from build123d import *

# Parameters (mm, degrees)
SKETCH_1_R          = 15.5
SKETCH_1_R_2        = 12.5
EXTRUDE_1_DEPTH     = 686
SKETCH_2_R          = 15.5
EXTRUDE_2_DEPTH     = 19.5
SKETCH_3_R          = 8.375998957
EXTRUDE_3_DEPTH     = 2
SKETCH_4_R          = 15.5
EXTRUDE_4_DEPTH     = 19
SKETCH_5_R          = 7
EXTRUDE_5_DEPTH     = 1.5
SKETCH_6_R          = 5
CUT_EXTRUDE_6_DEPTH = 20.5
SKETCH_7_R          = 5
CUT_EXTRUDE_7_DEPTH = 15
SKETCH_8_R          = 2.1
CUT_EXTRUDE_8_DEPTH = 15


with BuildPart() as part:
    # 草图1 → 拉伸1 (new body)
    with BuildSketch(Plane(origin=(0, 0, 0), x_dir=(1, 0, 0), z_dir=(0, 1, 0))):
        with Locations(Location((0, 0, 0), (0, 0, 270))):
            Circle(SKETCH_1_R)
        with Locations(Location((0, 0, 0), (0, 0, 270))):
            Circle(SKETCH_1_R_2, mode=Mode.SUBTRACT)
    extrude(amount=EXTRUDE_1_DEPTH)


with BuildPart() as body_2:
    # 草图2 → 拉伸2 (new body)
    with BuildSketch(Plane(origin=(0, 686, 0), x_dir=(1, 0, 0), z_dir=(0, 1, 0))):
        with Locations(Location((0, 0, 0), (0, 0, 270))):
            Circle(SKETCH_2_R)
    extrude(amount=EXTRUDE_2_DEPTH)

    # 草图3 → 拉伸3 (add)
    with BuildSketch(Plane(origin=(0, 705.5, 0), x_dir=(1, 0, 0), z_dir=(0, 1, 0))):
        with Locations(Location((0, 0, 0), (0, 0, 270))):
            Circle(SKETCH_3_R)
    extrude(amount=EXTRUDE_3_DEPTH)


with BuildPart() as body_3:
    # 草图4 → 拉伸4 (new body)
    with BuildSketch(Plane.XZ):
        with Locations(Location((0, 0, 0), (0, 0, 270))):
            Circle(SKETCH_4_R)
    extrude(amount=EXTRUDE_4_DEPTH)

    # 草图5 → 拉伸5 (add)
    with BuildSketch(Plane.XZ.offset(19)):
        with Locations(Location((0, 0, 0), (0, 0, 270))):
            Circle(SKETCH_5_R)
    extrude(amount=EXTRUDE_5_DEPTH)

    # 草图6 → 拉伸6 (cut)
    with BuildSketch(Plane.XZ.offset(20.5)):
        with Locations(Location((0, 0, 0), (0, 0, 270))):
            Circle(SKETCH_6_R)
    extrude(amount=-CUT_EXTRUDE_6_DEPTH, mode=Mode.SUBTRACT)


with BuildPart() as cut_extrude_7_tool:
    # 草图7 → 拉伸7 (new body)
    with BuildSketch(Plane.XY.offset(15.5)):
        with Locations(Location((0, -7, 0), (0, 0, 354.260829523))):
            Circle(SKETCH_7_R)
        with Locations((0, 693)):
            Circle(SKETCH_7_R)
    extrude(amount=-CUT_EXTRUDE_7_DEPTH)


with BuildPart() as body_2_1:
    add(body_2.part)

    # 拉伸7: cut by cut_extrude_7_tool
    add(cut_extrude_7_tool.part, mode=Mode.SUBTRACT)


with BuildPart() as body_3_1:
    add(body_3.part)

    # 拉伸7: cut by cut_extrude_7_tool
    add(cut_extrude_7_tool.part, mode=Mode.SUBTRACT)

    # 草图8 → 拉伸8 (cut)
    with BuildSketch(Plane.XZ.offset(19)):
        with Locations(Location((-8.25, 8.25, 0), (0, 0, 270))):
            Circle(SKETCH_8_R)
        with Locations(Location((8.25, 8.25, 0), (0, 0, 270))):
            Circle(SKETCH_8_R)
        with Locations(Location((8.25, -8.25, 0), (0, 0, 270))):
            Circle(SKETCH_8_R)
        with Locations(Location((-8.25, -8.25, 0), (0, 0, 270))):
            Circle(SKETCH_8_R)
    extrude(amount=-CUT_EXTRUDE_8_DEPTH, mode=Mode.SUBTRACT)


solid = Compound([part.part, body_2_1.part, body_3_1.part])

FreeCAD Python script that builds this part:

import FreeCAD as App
import Part
import Sketcher

doc = App.newDocument("Part")
body = doc.addObject("PartDesign::Body", "Body")

sketch1 = body.newObject("Sketcher::SketchObject", "Sketch")
sketch1.AttachmentSupport = (doc.getObject("XZ_Plane"), [""])
sketch1.MapMode = "FlatFace"
sketch1.addGeometry([
    Part.Circle(App.Vector(0, 0, 0), App.Vector(0, 0, 1), 16),
    Part.Circle(App.Vector(0, 0, 0), App.Vector(0, 0, 1), 12),
], False)
sketch1.addConstraint([
    Sketcher.Constraint("Coincident", 0, 3, -1, 1),
    Sketcher.Constraint("Coincident", 1, 3, -1, 1),
    Sketcher.Constraint("Diameter", 0, 31.0),
    Sketcher.Constraint("Diameter", 1, 25.0),
])
pad1 = body.newObject("PartDesign::Pad", "Pad")
pad1.Profile = sketch1
pad1.Length = 686
pad1.Reversed = True
body2 = doc.addObject("PartDesign::Body", "Body001")

sketch2 = body2.newObject("Sketcher::SketchObject", "Sketch001")
sketch2.AttachmentSupport = (doc.getObject("XZ_Plane001"), [""])
sketch2.MapMode = "FlatFace"
sketch2.AttachmentOffset = App.Placement(App.Vector(0, 0, -686), App.Rotation())
sketch2.addGeometry(Part.Circle(App.Vector(0, 0, 0), App.Vector(0, 0, 1), 16), False)
sketch2.addConstraint([
    Sketcher.Constraint("Coincident", 0, 3, -1, 1),
    Sketcher.Constraint("Diameter", 0, 31.0),
])
pad2 = body2.newObject("PartDesign::Pad", "Pad001")
pad2.Profile = sketch2
pad2.Length = 19.5
pad2.Reversed = True

sketch3 = body2.newObject("Sketcher::SketchObject", "Sketch002")
sketch3.AttachmentSupport = (doc.getObject("XZ_Plane001"), [""])
sketch3.MapMode = "FlatFace"
sketch3.AttachmentOffset = App.Placement(App.Vector(0, 0, -705.5), App.Rotation())
sketch3.addGeometry(Part.Circle(App.Vector(0, 0, 0), App.Vector(0, 0, 1), 8), False)
sketch3.addConstraint([
    Sketcher.Constraint("Coincident", 0, 3, -1, 1),
    Sketcher.Constraint("Diameter", 0, 16.751998),
])
pad3 = body2.newObject("PartDesign::Pad", "Pad002")
pad3.Profile = sketch3
pad3.Length = 2
pad3.Reversed = True
body3 = doc.addObject("PartDesign::Body", "Body002")

sketch4 = body3.newObject("Sketcher::SketchObject", "Sketch003")
sketch4.AttachmentSupport = (doc.getObject("XZ_Plane002"), [""])
sketch4.MapMode = "FlatFace"
sketch4.addGeometry(Part.Circle(App.Vector(0, 0, 0), App.Vector(0, 0, 1), 16), False)
sketch4.addConstraint([
    Sketcher.Constraint("Coincident", 0, 3, -1, 1),
    Sketcher.Constraint("Diameter", 0, 31.0),
])
pad4 = body3.newObject("PartDesign::Pad", "Pad003")
pad4.Profile = sketch4
pad4.Length = 19

sketch5 = body3.newObject("Sketcher::SketchObject", "Sketch004")
sketch5.AttachmentSupport = (doc.getObject("XZ_Plane002"), [""])
sketch5.MapMode = "FlatFace"
sketch5.AttachmentOffset = App.Placement(App.Vector(0, 0, 19), App.Rotation())
sketch5.addGeometry(Part.Circle(App.Vector(0, 0, 0), App.Vector(0, 0, 1), 7), False)
sketch5.addConstraint([
    Sketcher.Constraint("Coincident", 0, 3, -1, 1),
    Sketcher.Constraint("Diameter", 0, 14.0),
])
pad5 = body3.newObject("PartDesign::Pad", "Pad004")
pad5.Profile = sketch5
pad5.Length = 1.5

sketch6 = body3.newObject("Sketcher::SketchObject", "Sketch005")
sketch6.AttachmentSupport = (doc.getObject("XZ_Plane002"), [""])
sketch6.MapMode = "FlatFace"
sketch6.AttachmentOffset = App.Placement(App.Vector(0, 0, 20.5), App.Rotation())
sketch6.addGeometry(Part.Circle(App.Vector(0, 0, 0), App.Vector(0, 0, 1), 5), False)
sketch6.addConstraint([
    Sketcher.Constraint("Coincident", 0, 3, -1, 1),
    Sketcher.Constraint("Diameter", 0, 10.0),
])
pocket1 = body3.newObject("PartDesign::Pocket", "Pocket")
pocket1.Profile = sketch6
pocket1.Length = 20.5
body4 = doc.addObject("PartDesign::Body", "Body003")
body4.AllowCompound = True

sketch7 = body4.newObject("Sketcher::SketchObject", "Sketch006")
sketch7.AttachmentSupport = (doc.getObject("XY_Plane003"), [""])
sketch7.MapMode = "FlatFace"
sketch7.AttachmentOffset = App.Placement(App.Vector(0, 0, 15.5), App.Rotation())
sketch7.addGeometry([
    Part.Circle(App.Vector(0, -7, 0), App.Vector(0, 0, 1), 5),
    Part.Circle(App.Vector(0, 693, 0), App.Vector(0, 0, 1), 5),
], False)
sketch7.addConstraint([
    Sketcher.Constraint("Equal", 0, 1),
    Sketcher.Constraint("PointOnObject", 0, 3, -2),
    Sketcher.Constraint("PointOnObject", 1, 3, -2),
    Sketcher.Constraint("Diameter", 0, 10.0),
    Sketcher.Constraint("DistanceY", 0, 3, -1, 1, 7.0),
    Sketcher.Constraint("DistanceY", -1, 1, 1, 3, 693.0),
])
pad6 = body4.newObject("PartDesign::Pad", "Pad005")
pad6.Profile = sketch7
pad6.Length = 15
pad6.Reversed = True
doc.recompute()

body5 = doc.addObject("PartDesign::Body", "Body004")
body5.BaseFeature = body4
boolean = body2.newObject("PartDesign::Boolean", "Boolean")
boolean.Type = "Cut"
boolean.addObjects([body5])
doc.recompute()

boolean2 = body3.newObject("PartDesign::Boolean", "Boolean001")
boolean2.Type = "Cut"
boolean2.addObjects([body4])

sketch8 = body3.newObject("Sketcher::SketchObject", "Sketch007")
sketch8.AttachmentSupport = (doc.getObject("XZ_Plane002"), [""])
sketch8.MapMode = "FlatFace"
sketch8.AttachmentOffset = App.Placement(App.Vector(0, 0, 19), App.Rotation())
sketch8.addGeometry([
    Part.Circle(App.Vector(-8.2, 8.2, 0), App.Vector(0, 0, 1), 2.1),
    Part.Circle(App.Vector(8.2, 8.2, 0), App.Vector(0, 0, 1), 2.1),
    Part.Circle(App.Vector(8.2, -8.2, 0), App.Vector(0, 0, 1), 2.1),
    Part.Circle(App.Vector(-8.2, -8.2, 0), App.Vector(0, 0, 1), 2.1),
], False)
sketch8.addConstraint([
    Sketcher.Constraint("Equal", 0, 1),
    Sketcher.Constraint("Equal", 1, 2),
    Sketcher.Constraint("Equal", 2, 3),
    Sketcher.Constraint("Symmetric", 0, 3, 2, 3, -1, 1),
    Sketcher.Constraint("Symmetric", 1, 3, 3, 3, -1, 1),
    Sketcher.Constraint("Symmetric", 0, 3, 1, 3, -2),
    Sketcher.Constraint("Diameter", 0, 4.2),
    Sketcher.Constraint("DistanceX", 0, 3, 1, 3, 16.5),
    Sketcher.Constraint("DistanceY", 2, 3, 1, 3, 16.5),
])
pocket2 = body3.newObject("PartDesign::Pocket", "Pocket001")
pocket2.Profile = sketch8
pocket2.Length = 15

doc.recompute()
